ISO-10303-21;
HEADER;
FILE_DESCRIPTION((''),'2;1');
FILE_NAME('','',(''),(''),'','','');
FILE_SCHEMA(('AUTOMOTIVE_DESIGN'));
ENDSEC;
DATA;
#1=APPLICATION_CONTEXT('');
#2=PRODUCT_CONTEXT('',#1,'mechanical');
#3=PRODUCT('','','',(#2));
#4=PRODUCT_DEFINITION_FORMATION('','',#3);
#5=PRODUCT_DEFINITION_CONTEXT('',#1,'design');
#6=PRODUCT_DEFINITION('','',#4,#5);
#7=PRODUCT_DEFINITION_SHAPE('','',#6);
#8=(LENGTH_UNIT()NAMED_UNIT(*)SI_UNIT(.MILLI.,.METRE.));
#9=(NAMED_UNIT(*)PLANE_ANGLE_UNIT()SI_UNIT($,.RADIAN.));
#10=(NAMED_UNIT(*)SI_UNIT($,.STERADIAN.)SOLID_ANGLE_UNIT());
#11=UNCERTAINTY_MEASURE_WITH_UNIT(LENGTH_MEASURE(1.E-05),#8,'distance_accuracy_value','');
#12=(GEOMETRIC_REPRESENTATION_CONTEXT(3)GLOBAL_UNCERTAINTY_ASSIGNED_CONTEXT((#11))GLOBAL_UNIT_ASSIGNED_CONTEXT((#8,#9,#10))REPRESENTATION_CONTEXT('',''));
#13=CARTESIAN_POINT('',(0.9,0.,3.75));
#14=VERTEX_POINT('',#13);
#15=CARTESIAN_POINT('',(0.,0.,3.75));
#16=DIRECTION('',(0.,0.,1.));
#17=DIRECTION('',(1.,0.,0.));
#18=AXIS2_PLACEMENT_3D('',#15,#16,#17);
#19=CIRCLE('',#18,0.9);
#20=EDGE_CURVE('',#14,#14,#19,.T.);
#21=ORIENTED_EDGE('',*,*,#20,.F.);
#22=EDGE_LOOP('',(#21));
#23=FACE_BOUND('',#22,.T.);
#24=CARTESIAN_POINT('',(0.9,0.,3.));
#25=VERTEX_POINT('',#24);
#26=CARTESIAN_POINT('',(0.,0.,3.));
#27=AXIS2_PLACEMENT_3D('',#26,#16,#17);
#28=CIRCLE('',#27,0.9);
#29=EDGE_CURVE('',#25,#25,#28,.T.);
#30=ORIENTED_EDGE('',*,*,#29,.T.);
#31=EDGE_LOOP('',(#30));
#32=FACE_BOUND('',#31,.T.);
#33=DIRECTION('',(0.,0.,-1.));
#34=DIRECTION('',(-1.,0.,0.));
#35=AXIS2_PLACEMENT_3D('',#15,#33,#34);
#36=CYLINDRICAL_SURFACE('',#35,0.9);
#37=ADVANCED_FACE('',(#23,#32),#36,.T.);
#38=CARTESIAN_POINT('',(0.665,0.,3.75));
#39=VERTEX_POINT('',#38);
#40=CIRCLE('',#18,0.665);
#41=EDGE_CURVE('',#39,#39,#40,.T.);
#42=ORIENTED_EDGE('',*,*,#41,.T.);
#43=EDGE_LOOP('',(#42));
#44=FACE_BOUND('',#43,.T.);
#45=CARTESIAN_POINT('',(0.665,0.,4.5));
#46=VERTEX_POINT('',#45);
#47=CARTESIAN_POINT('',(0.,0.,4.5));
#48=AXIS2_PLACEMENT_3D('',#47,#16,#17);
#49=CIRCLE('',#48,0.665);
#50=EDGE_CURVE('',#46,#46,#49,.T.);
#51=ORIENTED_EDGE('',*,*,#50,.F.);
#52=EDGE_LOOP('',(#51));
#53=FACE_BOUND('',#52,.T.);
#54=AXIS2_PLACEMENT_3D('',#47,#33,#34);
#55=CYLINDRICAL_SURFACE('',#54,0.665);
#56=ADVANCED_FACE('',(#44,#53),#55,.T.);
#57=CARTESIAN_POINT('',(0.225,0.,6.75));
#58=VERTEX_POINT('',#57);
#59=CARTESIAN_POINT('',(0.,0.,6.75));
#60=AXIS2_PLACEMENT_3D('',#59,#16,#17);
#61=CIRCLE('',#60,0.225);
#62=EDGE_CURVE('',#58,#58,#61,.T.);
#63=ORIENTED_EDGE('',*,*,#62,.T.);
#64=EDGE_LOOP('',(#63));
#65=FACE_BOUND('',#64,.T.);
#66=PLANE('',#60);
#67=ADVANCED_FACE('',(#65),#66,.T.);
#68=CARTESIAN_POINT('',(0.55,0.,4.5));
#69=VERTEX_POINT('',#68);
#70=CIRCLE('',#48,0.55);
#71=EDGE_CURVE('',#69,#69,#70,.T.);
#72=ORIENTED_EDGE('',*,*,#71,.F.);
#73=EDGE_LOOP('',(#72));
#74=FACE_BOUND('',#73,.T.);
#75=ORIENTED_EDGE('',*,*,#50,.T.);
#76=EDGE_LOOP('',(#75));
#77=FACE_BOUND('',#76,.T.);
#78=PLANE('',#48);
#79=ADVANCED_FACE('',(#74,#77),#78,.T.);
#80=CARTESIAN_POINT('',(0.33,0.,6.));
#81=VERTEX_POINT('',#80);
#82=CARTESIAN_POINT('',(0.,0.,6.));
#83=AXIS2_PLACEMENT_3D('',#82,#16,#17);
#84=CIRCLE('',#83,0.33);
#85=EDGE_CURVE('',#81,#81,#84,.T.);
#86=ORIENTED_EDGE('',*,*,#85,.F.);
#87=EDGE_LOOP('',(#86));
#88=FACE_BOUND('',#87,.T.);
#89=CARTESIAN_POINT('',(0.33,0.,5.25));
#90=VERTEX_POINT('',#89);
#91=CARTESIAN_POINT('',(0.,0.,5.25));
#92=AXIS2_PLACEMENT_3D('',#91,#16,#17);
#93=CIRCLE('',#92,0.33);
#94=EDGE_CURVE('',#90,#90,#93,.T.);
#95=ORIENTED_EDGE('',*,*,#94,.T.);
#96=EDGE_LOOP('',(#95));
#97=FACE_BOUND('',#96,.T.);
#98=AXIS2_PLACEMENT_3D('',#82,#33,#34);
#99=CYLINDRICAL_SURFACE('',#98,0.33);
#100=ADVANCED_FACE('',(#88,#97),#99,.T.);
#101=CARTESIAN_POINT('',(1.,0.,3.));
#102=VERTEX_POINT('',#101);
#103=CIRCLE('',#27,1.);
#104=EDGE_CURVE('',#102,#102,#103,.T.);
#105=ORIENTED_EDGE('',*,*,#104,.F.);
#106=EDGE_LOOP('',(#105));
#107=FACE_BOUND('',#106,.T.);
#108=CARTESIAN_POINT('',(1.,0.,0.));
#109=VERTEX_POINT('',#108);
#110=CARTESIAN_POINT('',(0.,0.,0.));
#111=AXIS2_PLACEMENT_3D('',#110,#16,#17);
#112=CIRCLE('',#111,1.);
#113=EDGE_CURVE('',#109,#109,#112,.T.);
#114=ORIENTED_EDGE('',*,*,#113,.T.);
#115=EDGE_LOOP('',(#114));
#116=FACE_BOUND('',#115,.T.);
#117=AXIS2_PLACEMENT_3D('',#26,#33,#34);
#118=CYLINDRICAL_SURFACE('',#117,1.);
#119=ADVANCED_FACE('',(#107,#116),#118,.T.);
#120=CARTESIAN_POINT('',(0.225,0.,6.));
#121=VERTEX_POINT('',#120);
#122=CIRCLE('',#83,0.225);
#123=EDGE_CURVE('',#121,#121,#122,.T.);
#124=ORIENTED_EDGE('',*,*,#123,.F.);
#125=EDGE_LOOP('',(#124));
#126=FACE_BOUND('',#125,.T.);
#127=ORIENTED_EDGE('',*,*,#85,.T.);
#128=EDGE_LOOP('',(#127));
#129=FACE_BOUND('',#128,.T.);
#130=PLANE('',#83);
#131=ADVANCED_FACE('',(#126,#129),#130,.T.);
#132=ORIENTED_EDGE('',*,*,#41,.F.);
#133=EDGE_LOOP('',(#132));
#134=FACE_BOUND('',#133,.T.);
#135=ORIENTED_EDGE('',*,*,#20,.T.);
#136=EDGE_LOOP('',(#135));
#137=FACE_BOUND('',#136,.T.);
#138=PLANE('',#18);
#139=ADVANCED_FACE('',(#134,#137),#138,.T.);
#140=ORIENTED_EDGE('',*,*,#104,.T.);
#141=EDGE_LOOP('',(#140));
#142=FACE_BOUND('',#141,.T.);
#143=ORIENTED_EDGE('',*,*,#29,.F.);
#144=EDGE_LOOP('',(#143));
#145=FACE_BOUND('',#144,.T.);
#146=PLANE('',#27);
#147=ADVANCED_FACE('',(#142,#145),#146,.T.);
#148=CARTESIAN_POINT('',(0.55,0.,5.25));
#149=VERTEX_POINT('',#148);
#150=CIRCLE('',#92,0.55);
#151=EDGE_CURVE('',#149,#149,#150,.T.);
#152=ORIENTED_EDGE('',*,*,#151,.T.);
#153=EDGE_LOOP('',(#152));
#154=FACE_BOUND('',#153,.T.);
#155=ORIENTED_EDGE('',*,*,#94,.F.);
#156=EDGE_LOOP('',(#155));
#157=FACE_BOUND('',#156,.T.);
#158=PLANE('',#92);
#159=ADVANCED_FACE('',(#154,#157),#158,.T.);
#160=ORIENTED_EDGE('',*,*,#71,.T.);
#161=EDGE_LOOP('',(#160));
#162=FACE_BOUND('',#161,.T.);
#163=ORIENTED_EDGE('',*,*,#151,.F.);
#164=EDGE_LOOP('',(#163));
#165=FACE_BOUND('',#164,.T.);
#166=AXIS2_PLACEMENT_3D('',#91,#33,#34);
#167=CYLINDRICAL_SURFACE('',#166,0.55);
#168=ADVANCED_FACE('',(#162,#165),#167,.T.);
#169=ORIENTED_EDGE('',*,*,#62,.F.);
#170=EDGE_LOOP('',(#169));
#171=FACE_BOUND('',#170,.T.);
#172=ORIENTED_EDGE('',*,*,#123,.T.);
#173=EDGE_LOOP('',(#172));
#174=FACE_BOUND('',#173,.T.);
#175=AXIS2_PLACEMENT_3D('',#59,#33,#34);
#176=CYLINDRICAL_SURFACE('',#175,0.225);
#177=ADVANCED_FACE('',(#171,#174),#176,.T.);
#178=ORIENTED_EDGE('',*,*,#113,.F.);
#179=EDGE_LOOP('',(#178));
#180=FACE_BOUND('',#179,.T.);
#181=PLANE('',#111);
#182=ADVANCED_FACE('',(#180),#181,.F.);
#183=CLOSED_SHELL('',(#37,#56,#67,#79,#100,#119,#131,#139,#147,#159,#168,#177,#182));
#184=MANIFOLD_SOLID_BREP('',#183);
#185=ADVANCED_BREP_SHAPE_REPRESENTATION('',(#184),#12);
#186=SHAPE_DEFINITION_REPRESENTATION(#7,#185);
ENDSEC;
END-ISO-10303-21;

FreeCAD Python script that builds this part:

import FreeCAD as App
import Part
import Sketcher

doc = App.newDocument("Part")
params = doc.addObject("Spreadsheet::Sheet", "Params")
for row, (alias, value) in enumerate([
    ("sketch1_diameter", "2 mm"),
    ("pad1_length", "3 mm"),
    ("sketch2_diameter", "0.66 mm"),
    ("sketch2_diameter2", "0.45 mm"),
    ("pad2_length", "3 mm"),
    ("sketch3_diameter", "1.1 mm"),
    ("sketch3_diameter2", "0.66 mm"),
    ("pad3_length", "2.25 mm"),
    ("sketch4_diameter", "1.1 mm"),
    ("sketch4_diameter2", "1.33 mm"),
    ("pad4_length", "1.5 mm"),
    ("sketch5_diameter", "1.8 mm"),
    ("sketch5_diameter2", "1.33 mm"),
    ("pad5_length", "0.75 mm"),
    ("sketch6_diameter", "0.45 mm"),
    ("pad6_length", "3.75 mm"),
], start=1):
    params.set(f"A{row}", alias)
    params.set(f"B{row}", "=" + value)
    params.setAlias(f"B{row}", alias)

body = doc.addObject("PartDesign::Body", "Body")

sketch1 = body.newObject("Sketcher::SketchObject", "Sketch")
sketch1.AttachmentSupport = (doc.getObject("XY_Plane"), [""])
sketch1.MapMode = "FlatFace"
sketch1.addGeometry(Part.Circle(App.Vector(0, 0, 0), App.Vector(0, 0, 1), 1), False)
sketch1.addConstraint([
    Sketcher.Constraint("Coincident", 0, 3, -1, 1),
    Sketcher.Constraint("Diameter", 0, 2.0),
])
sketch1.setExpression("Constraints[1]", "Params.sketch1_diameter")
pad1 = body.newObject("PartDesign::Pad", "Pad")
pad1.Profile = sketch1
pad1.setExpression("Length", "Params.pad1_length")

sketch2 = body.newObject("Sketcher::SketchObject", "Sketch001")
sketch2.AttachmentSupport = (doc.getObject("XY_Plane"), [""])
sketch2.MapMode = "FlatFace"
sketch2.AttachmentOffset = App.Placement(App.Vector(0, 0, 3), App.Rotation())
sketch2.addGeometry([
    Part.Circle(App.Vector(0, 0, 0), App.Vector(0, 0, 1), 0.33),
    Part.Circle(App.Vector(0, 0, 0), App.Vector(0, 0, 1), 0.23),
], False)
sketch2.addConstraint([
    Sketcher.Constraint("Coincident", 0, 3, -1, 1),
    Sketcher.Constraint("Coincident", 1, 3, -1, 1),
    Sketcher.Constraint("Diameter", 0, 0.66),
    Sketcher.Constraint("Diameter", 1, 0.45),
])
sketch2.setExpression("Constraints[2]", "Params.sketch2_diameter")
sketch2.setExpression("Constraints[3]", "Params.sketch2_diameter2")
pad2 = body.newObject("PartDesign::Pad", "Pad001")
pad2.Profile = sketch2
pad2.setExpression("Length", "Params.pad2_length")

sketch3 = body.newObject("Sketcher::SketchObject", "Sketch002")
sketch3.AttachmentSupport = (doc.getObject("XY_Plane"), [""])
sketch3.MapMode = "FlatFace"
sketch3.AttachmentOffset = App.Placement(App.Vector(0, 0, 3), App.Rotation())
sketch3.addGeometry([
    Part.Circle(App.Vector(0, 0, 0), App.Vector(0, 0, 1), 0.55),
    Part.Circle(App.Vector(0, 0, 0), App.Vector(0, 0, 1), 0.33),
], False)
sketch3.addConstraint([
    Sketcher.Constraint("Coincident", 0, 3, -1, 1),
    Sketcher.Constraint("Coincident", 1, 3, -1, 1),
    Sketcher.Constraint("Diameter", 0, 1.1),
    Sketcher.Constraint("Diameter", 1, 0.66),
])
sketch3.setExpression("Constraints[2]", "Params.sketch3_diameter")
sketch3.setExpression("Constraints[3]", "Params.sketch3_diameter2")
pad3 = body.newObject("PartDesign::Pad", "Pad002")
pad3.Profile = sketch3
pad3.setExpression("Length", "Params.pad3_length")

sketch4 = body.newObject("Sketcher::SketchObject", "Sketch003")
sketch4.AttachmentSupport = (doc.getObject("XY_Plane"), [""])
sketch4.MapMode = "FlatFace"
sketch4.AttachmentOffset = App.Placement(App.Vector(0, 0, 3), App.Rotation())
sketch4.addGeometry([
    Part.Circle(App.Vector(0, 0, 0), App.Vector(0, 0, 1), 0.7),
    Part.Circle(App.Vector(0, 0, 0), App.Vector(0, 0, 1), 0.6),
], False)
sketch4.addConstraint([
    Sketcher.Constraint("Coincident", 0, 3, -1, 1),
    Sketcher.Constraint("Coincident", 1, 3, -1, 1),
    Sketcher.Constraint("Diameter", 1, 1.1),
    Sketcher.Constraint("Diameter", 0, 1.33),
])
sketch4.setExpression("Constraints[2]", "Params.sketch4_diameter")
sketch4.setExpression("Constraints[3]", "Params.sketch4_diameter2")
pad4 = body.newObject("PartDesign::Pad", "Pad003")
pad4.Profile = sketch4
pad4.setExpression("Length", "Params.pad4_length")

sketch5 = body.newObject("Sketcher::SketchObject", "Sketch004")
sketch5.AttachmentSupport = (doc.getObject("XY_Plane"), [""])
sketch5.MapMode = "FlatFace"
sketch5.AttachmentOffset = App.Placement(App.Vector(0, 0, 3), App.Rotation())
sketch5.addGeometry([
    Part.Circle(App.Vector(0, 0, 0), App.Vector(0, 0, 1), 0.9),
    Part.Circle(App.Vector(0, 0, 0), App.Vector(0, 0, 1), 0.7),
], False)
sketch5.addConstraint([
    Sketcher.Constraint("Coincident", 0, 3, -1, 1),
    Sketcher.Constraint("Coincident", 1, 3, -1, 1),
    Sketcher.Constraint("Diameter", 0, 1.8),
    Sketcher.Constraint("Diameter", 1, 1.33),
])
sketch5.setExpression("Constraints[2]", "Params.sketch5_diameter")
sketch5.setExpression("Constraints[3]", "Params.sketch5_diameter2")
pad5 = body.newObject("PartDesign::Pad", "Pad004")
pad5.Profile = sketch5
pad5.setExpression("Length", "Params.pad5_length")

sketch6 = body.newObject("Sketcher::SketchObject", "Sketch005")
sketch6.AttachmentSupport = (doc.getObject("XY_Plane"), [""])
sketch6.MapMode = "FlatFace"
sketch6.AttachmentOffset = App.Placement(App.Vector(0, 0, 3), App.Rotation())
sketch6.addGeometry(Part.Circle(App.Vector(0, 0, 0), App.Vector(0, 0, 1), 0.23), False)
sketch6.addConstraint([
    Sketcher.Constraint("Coincident", 0, 3, -1, 1),
    Sketcher.Constraint("Diameter", 0, 0.45),
])
sketch6.setExpression("Constraints[1]", "Params.sketch6_diameter")
pad6 = body.newObject("PartDesign::Pad", "Pad005")
pad6.Profile = sketch6
pad6.setExpression("Length", "Params.pad6_length")

doc.recompute()
